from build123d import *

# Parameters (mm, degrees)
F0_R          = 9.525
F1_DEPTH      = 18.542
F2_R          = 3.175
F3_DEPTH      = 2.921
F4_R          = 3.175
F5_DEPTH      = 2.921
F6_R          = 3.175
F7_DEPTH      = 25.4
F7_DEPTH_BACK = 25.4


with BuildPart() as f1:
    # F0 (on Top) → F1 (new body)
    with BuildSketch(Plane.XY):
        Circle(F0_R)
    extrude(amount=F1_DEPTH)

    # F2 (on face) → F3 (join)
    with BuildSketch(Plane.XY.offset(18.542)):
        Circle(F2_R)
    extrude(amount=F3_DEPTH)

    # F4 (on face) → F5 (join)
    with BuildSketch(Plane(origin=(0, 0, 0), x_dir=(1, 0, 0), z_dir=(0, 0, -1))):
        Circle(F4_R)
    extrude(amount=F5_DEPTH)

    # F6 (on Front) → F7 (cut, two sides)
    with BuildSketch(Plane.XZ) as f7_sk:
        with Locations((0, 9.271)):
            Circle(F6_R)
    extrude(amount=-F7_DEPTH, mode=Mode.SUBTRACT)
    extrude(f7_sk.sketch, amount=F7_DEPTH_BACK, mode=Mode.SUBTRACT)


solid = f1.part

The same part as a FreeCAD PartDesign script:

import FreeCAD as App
import Part
import Sketcher

V = App.Vector
Q = App.Units.Quantity

doc = App.newDocument("Part")
body = doc.addObject("PartDesign::Body", "Body")

sketch1 = body.newObject("Sketcher::SketchObject", "Sketch")
sketch1.AttachmentSupport = (doc.getObject("XY_Plane"), [""])
sketch1.MapMode = "FlatFace"
sketch1.addGeometry(Part.Circle(V(0, 0, 0), V(0, 0, 1), 10), False)
sketch1.addConstraint([
    Sketcher.Constraint("Coincident", 0, 3, -1, 1),
    Sketcher.Constraint("Diameter", 0, Q("0.75 in")),
])
pad1 = body.newObject("PartDesign::Pad", "Pad")
pad1.Profile = sketch1
pad1.Length = Q("0.73 in")

sketch2 = body.newObject("Sketcher::SketchObject", "Sketch001")
sketch2.AttachmentSupport = (doc.getObject("XY_Plane"), [""])
sketch2.MapMode = "FlatFace"
sketch2.AttachmentOffset = App.Placement(V(0, 0, 0.73 * 25.4), App.Rotation())
sketch2.addGeometry(Part.Circle(V(0, 0, 0), V(0, 0, 1), 3.2), False)
sketch2.addConstraint([
    Sketcher.Constraint("Coincident", 0, 3, -1, 1),
    Sketcher.Constraint("Diameter", 0, Q("0.25 in")),
])
pad2 = body.newObject("PartDesign::Pad", "Pad001")
pad2.Profile = sketch2
pad2.Length = Q("0.115 in")

sketch3 = body.newObject("Sketcher::SketchObject", "Sketch002")
sketch3.AttachmentSupport = (doc.getObject("XY_Plane"), [""])
sketch3.MapMode = "FlatFace"
sketch3.addGeometry(Part.Circle(V(0, 0, 0), V(0, 0, 1), 3.2), False)
sketch3.addConstraint([
    Sketcher.Constraint("Coincident", 0, 3, -1, 1),
    Sketcher.Constraint("Diameter", 0, Q("0.25 in")),
])
pad3 = body.newObject("PartDesign::Pad", "Pad002")
pad3.Profile = sketch3
pad3.Length = Q("0.115 in")
pad3.Reversed = True

sketch4 = body.newObject("Sketcher::SketchObject", "Sketch003")
sketch4.AttachmentSupport = (doc.getObject("XZ_Plane"), [""])
sketch4.MapMode = "FlatFace"
sketch4.addGeometry(Part.Circle(V(0, 9.3, 0), V(0, 0, 1), 3.2), False)
sketch4.addConstraint([
    Sketcher.Constraint("PointOnObject", 0, 3, -2),
    Sketcher.Constraint("Diameter", 0, Q("0.25 in")),
    Sketcher.Constraint("DistanceY", -1, 1, 0, 3, Q("0.365 in")),
])
pocket1 = body.newObject("PartDesign::Pocket", "Pocket")
pocket1.Profile = sketch4
pocket1.Type = "ThroughAll"
pocket1.Midplane = True

doc.recompute()
